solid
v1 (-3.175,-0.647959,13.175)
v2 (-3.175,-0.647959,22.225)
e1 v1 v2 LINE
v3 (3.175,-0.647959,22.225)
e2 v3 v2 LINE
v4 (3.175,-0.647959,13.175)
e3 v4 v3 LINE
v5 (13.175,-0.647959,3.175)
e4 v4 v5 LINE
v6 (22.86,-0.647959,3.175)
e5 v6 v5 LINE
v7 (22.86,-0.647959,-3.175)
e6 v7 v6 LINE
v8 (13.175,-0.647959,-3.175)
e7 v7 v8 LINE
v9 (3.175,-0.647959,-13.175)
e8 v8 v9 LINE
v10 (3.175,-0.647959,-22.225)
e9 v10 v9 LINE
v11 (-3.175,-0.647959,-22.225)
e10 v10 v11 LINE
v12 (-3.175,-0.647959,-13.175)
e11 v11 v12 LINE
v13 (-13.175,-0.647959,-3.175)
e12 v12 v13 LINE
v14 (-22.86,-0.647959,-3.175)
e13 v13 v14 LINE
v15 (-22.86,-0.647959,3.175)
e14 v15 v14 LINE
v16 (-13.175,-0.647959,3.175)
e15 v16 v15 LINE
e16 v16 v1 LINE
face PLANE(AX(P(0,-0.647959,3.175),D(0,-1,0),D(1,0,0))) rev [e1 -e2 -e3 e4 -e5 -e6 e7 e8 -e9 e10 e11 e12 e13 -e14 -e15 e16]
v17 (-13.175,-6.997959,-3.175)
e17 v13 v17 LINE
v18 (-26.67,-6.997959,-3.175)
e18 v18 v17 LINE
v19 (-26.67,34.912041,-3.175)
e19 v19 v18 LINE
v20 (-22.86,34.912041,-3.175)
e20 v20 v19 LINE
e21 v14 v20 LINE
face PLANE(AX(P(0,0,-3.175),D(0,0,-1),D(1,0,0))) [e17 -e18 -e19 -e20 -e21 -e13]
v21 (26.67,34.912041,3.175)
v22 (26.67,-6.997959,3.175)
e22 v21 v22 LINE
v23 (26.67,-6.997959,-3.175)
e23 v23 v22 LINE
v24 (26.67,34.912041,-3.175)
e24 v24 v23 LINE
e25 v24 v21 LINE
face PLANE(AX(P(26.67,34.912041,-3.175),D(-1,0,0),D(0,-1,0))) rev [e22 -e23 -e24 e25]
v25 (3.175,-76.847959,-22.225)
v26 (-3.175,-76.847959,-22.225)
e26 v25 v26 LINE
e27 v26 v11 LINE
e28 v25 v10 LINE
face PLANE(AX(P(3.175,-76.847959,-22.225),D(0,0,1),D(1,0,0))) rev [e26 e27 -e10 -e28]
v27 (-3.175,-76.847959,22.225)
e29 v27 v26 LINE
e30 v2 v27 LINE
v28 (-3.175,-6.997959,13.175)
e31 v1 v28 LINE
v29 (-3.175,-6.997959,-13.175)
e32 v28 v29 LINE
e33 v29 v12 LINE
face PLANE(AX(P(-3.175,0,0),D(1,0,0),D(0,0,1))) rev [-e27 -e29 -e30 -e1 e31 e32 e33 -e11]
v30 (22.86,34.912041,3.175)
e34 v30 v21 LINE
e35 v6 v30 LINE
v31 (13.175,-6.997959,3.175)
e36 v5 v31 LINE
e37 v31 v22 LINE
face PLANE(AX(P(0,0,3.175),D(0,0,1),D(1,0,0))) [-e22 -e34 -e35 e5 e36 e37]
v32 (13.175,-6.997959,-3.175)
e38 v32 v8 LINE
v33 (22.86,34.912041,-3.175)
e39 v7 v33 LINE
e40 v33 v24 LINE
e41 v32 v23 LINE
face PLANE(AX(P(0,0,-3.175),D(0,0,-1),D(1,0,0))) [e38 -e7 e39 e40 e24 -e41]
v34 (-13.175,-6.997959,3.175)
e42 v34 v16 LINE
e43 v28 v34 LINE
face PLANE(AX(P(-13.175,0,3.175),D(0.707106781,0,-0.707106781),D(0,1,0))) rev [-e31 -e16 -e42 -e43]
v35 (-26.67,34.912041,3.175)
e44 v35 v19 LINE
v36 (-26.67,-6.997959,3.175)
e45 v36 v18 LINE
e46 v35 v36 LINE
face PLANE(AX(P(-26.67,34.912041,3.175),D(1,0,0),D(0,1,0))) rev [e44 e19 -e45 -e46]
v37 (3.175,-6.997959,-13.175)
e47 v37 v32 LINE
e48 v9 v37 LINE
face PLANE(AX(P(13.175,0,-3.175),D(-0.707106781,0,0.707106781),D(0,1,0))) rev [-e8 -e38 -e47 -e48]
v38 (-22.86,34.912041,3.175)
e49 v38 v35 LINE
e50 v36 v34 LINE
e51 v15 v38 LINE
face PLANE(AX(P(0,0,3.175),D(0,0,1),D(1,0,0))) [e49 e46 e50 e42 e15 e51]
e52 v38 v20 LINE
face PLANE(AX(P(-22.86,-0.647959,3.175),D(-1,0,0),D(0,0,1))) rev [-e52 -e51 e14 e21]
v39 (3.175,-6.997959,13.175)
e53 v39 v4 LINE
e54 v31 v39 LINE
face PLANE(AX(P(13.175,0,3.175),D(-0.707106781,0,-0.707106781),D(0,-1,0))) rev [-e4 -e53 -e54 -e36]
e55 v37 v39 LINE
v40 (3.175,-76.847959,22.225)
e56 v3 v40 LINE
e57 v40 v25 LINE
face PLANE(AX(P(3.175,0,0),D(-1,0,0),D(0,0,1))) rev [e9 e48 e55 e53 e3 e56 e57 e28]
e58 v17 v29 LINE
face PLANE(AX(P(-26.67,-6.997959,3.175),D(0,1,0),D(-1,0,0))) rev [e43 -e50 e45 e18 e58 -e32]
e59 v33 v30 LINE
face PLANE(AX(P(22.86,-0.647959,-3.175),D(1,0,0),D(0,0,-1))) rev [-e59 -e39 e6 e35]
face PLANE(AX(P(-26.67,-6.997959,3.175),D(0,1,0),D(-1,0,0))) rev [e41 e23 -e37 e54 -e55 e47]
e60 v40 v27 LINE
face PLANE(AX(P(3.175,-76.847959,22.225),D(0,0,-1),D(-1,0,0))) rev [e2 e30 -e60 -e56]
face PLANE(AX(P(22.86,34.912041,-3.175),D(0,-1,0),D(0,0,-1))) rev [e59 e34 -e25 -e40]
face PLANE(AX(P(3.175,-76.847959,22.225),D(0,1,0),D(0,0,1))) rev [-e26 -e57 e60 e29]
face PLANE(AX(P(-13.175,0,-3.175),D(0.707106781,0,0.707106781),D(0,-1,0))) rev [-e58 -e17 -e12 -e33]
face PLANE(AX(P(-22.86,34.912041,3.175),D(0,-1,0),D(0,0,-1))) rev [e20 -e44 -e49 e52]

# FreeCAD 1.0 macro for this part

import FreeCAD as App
import Part
import Sketcher
Q = App.Units.Quantity


def edges_at(feature, points):
    """Names of the edges that pass closest to the given points."""
    edges = feature.Shape.Edges
    near = lambda p: min(range(len(edges)), key=lambda i: edges[i].distToShape(Part.Vertex(*p))[0])
    return sorted({f"Edge{near(p) + 1}" for p in points})


def add_polygon(sketch, points):
    """Adds a closed chain of lines whose ends are joined by coincident constraints."""
    first, n = sketch.GeometryCount, len(points)
    for a, b in zip(points, points[1:] + points[:1]):
        sketch.addGeometry(Part.LineSegment(App.Vector(*a, 0), App.Vector(*b, 0)), False)
    for i in range(n):
        sketch.addConstraint(Sketcher.Constraint("Coincident", first + i, 2, first + (i + 1) % n, 1))

doc = App.newDocument("Part")
body = doc.addObject("PartDesign::Body", "Body")

# Sketch on XY plane
sketch1 = doc.addObject("Sketcher::SketchObject", "Sketch")
body.addObject(sketch1)
sketch1.AttachmentSupport = (doc.XY_Plane, [""])
sketch1.MapMode = "FlatFace"
add_polygon(sketch1, [(0, -6.997959), (0, -0.647959), (-22.86, -0.647959), (-22.86, 34.912041), (-26.67, 34.912041), (-26.67, -6.997959)])  # lines 0-5
sketch1.addConstraint(Sketcher.Constraint("Vertical", 0))
sketch1.addConstraint(Sketcher.Constraint("Horizontal", 1))
sketch1.addConstraint(Sketcher.Constraint("Vertical", 2))
sketch1.addConstraint(Sketcher.Constraint("Horizontal", 3))
sketch1.addConstraint(Sketcher.Constraint("Vertical", 4))
sketch1.addConstraint(Sketcher.Constraint("Horizontal", 5))
sketch1.addConstraint(Sketcher.Constraint("PointOnObject", 0, 2, -2))
sketch1.addConstraint(Sketcher.Constraint("DistanceX", 1, 2, 1, 1, Q("0.9 in")))
sketch1.addConstraint(Sketcher.Constraint("DistanceY", 2, 1, 2, 2, Q("1.4 in")))
sketch1.addConstraint(Sketcher.Constraint("DistanceX", 3, 2, 3, 1, Q("0.15 in")))
sketch1.addConstraint(Sketcher.Constraint("DistanceY", 0, 1, 0, 2, Q("0.25 in")))
sketch1.addConstraint(Sketcher.Constraint("DistanceY", 0, 2, -1, 1, Q("0.647959 mm")))
pad1 = doc.addObject("PartDesign::Pad", "Pad")
body.addObject(pad1)
pad1.Profile = sketch1
pad1.Length = Q("0.125 in")
doc.recompute()

mirrored = doc.addObject("PartDesign::Mirrored", "Mirrored")
body.addObject(mirrored)
mirrored.Originals = [pad1]
mirrored.MirrorPlane = (doc.XY_Plane, [""])
body.Tip = mirrored
doc.recompute()

mirrored2 = doc.addObject("PartDesign::Mirrored", "Mirrored001")
body.addObject(mirrored2)
mirrored2.Originals = [pad1]
mirrored2.MirrorPlane = (doc.YZ_Plane, [""])
body.Tip = mirrored2

# Sketch on XY plane
sketch2 = doc.addObject("Sketcher::SketchObject", "Sketch001")
body.addObject(sketch2)
sketch2.AttachmentSupport = (doc.XY_Plane, [""])
sketch2.MapMode = "FlatFace"
add_polygon(sketch2, [(0, -6.997959), (0, -0.647959), (22.86, -0.647959), (22.86, 34.912041), (26.67, 34.912041), (26.67, -6.997959)])  # lines 0-5
sketch2.addConstraint(Sketcher.Constraint("Vertical", 0))
sketch2.addConstraint(Sketcher.Constraint("Horizontal", 1))
sketch2.addConstraint(Sketcher.Constraint("Vertical", 2))
sketch2.addConstraint(Sketcher.Constraint("Horizontal", 3))
sketch2.addConstraint(Sketcher.Constraint("Vertical", 4))
sketch2.addConstraint(Sketcher.Constraint("Horizontal", 5))
sketch2.addConstraint(Sketcher.Constraint("PointOnObject", 0, 2, -2))
sketch2.addConstraint(Sketcher.Constraint("DistanceX", 1, 1, 1, 2, Q("0.9 in")))
sketch2.addConstraint(Sketcher.Constraint("DistanceY", 2, 1, 2, 2, Q("1.4 in")))
sketch2.addConstraint(Sketcher.Constraint("DistanceX", 3, 1, 3, 2, Q("0.15 in")))
sketch2.addConstraint(Sketcher.Constraint("DistanceY", 0, 1, 0, 2, Q("0.25 in")))
sketch2.addConstraint(Sketcher.Constraint("DistanceY", 0, 2, -1, 1, Q("0.647959 mm")))
pad2 = doc.addObject("PartDesign::Pad", "Pad001")
body.addObject(pad2)
pad2.Profile = sketch2
pad2.Length = Q("0.125 in")
pad2.Reversed = True

# Sketch on YZ plane
sketch3 = doc.addObject("Sketcher::SketchObject", "Sketch002")
body.addObject(sketch3)
sketch3.AttachmentSupport = (doc.YZ_Plane, [""])
sketch3.MapMode = "FlatFace"
add_polygon(sketch3, [(-0.647959, 22.225), (-76.847959, 22.225), (-76.847959, -22.225), (-0.647959, -22.225)])  # lines 0-3
sketch3.addConstraint(Sketcher.Constraint("Horizontal", 0))
sketch3.addConstraint(Sketcher.Constraint("Vertical", 1))
sketch3.addConstraint(Sketcher.Constraint("Horizontal", 2))
sketch3.addConstraint(Sketcher.Constraint("Vertical", 3))
sketch3.addConstraint(Sketcher.Constraint("DistanceX", 0, 2, 0, 1, Q("3 in")))
sketch3.addConstraint(Sketcher.Constraint("DistanceY", 1, 2, 1, 1, Q("1.75 in")))
sketch3.addConstraint(Sketcher.Constraint("DistanceY", -1, 1, 0, 2, Q("0.875 in")))
sketch3.addConstraint(Sketcher.Constraint("DistanceX", 0, 2, -1, 1, Q("76.847959 mm")))
pad3 = doc.addObject("PartDesign::Pad", "Pad002")
body.addObject(pad3)
pad3.Profile = sketch3
pad3.Length = Q("0.125 in")
doc.recompute()

mirrored3 = doc.addObject("PartDesign::Mirrored", "Mirrored002")
body.addObject(mirrored3)
mirrored3.Originals = [pad3]
mirrored3.MirrorPlane = (doc.YZ_Plane, [""])
body.Tip = mirrored3
doc.recompute()

chamfer = doc.addObject("PartDesign::Chamfer", "Chamfer")
body.addObject(chamfer)
chamfer.Base = (mirrored3, edges_at(mirrored3, [
    (3.175, -3.823, -3.175),
    (3.175, -3.823, 3.175),
    (-3.175, -3.823, -3.175),
    (-3.175, -3.823, 3.175),
]))
chamfer.Size = 10

doc.recompute()
